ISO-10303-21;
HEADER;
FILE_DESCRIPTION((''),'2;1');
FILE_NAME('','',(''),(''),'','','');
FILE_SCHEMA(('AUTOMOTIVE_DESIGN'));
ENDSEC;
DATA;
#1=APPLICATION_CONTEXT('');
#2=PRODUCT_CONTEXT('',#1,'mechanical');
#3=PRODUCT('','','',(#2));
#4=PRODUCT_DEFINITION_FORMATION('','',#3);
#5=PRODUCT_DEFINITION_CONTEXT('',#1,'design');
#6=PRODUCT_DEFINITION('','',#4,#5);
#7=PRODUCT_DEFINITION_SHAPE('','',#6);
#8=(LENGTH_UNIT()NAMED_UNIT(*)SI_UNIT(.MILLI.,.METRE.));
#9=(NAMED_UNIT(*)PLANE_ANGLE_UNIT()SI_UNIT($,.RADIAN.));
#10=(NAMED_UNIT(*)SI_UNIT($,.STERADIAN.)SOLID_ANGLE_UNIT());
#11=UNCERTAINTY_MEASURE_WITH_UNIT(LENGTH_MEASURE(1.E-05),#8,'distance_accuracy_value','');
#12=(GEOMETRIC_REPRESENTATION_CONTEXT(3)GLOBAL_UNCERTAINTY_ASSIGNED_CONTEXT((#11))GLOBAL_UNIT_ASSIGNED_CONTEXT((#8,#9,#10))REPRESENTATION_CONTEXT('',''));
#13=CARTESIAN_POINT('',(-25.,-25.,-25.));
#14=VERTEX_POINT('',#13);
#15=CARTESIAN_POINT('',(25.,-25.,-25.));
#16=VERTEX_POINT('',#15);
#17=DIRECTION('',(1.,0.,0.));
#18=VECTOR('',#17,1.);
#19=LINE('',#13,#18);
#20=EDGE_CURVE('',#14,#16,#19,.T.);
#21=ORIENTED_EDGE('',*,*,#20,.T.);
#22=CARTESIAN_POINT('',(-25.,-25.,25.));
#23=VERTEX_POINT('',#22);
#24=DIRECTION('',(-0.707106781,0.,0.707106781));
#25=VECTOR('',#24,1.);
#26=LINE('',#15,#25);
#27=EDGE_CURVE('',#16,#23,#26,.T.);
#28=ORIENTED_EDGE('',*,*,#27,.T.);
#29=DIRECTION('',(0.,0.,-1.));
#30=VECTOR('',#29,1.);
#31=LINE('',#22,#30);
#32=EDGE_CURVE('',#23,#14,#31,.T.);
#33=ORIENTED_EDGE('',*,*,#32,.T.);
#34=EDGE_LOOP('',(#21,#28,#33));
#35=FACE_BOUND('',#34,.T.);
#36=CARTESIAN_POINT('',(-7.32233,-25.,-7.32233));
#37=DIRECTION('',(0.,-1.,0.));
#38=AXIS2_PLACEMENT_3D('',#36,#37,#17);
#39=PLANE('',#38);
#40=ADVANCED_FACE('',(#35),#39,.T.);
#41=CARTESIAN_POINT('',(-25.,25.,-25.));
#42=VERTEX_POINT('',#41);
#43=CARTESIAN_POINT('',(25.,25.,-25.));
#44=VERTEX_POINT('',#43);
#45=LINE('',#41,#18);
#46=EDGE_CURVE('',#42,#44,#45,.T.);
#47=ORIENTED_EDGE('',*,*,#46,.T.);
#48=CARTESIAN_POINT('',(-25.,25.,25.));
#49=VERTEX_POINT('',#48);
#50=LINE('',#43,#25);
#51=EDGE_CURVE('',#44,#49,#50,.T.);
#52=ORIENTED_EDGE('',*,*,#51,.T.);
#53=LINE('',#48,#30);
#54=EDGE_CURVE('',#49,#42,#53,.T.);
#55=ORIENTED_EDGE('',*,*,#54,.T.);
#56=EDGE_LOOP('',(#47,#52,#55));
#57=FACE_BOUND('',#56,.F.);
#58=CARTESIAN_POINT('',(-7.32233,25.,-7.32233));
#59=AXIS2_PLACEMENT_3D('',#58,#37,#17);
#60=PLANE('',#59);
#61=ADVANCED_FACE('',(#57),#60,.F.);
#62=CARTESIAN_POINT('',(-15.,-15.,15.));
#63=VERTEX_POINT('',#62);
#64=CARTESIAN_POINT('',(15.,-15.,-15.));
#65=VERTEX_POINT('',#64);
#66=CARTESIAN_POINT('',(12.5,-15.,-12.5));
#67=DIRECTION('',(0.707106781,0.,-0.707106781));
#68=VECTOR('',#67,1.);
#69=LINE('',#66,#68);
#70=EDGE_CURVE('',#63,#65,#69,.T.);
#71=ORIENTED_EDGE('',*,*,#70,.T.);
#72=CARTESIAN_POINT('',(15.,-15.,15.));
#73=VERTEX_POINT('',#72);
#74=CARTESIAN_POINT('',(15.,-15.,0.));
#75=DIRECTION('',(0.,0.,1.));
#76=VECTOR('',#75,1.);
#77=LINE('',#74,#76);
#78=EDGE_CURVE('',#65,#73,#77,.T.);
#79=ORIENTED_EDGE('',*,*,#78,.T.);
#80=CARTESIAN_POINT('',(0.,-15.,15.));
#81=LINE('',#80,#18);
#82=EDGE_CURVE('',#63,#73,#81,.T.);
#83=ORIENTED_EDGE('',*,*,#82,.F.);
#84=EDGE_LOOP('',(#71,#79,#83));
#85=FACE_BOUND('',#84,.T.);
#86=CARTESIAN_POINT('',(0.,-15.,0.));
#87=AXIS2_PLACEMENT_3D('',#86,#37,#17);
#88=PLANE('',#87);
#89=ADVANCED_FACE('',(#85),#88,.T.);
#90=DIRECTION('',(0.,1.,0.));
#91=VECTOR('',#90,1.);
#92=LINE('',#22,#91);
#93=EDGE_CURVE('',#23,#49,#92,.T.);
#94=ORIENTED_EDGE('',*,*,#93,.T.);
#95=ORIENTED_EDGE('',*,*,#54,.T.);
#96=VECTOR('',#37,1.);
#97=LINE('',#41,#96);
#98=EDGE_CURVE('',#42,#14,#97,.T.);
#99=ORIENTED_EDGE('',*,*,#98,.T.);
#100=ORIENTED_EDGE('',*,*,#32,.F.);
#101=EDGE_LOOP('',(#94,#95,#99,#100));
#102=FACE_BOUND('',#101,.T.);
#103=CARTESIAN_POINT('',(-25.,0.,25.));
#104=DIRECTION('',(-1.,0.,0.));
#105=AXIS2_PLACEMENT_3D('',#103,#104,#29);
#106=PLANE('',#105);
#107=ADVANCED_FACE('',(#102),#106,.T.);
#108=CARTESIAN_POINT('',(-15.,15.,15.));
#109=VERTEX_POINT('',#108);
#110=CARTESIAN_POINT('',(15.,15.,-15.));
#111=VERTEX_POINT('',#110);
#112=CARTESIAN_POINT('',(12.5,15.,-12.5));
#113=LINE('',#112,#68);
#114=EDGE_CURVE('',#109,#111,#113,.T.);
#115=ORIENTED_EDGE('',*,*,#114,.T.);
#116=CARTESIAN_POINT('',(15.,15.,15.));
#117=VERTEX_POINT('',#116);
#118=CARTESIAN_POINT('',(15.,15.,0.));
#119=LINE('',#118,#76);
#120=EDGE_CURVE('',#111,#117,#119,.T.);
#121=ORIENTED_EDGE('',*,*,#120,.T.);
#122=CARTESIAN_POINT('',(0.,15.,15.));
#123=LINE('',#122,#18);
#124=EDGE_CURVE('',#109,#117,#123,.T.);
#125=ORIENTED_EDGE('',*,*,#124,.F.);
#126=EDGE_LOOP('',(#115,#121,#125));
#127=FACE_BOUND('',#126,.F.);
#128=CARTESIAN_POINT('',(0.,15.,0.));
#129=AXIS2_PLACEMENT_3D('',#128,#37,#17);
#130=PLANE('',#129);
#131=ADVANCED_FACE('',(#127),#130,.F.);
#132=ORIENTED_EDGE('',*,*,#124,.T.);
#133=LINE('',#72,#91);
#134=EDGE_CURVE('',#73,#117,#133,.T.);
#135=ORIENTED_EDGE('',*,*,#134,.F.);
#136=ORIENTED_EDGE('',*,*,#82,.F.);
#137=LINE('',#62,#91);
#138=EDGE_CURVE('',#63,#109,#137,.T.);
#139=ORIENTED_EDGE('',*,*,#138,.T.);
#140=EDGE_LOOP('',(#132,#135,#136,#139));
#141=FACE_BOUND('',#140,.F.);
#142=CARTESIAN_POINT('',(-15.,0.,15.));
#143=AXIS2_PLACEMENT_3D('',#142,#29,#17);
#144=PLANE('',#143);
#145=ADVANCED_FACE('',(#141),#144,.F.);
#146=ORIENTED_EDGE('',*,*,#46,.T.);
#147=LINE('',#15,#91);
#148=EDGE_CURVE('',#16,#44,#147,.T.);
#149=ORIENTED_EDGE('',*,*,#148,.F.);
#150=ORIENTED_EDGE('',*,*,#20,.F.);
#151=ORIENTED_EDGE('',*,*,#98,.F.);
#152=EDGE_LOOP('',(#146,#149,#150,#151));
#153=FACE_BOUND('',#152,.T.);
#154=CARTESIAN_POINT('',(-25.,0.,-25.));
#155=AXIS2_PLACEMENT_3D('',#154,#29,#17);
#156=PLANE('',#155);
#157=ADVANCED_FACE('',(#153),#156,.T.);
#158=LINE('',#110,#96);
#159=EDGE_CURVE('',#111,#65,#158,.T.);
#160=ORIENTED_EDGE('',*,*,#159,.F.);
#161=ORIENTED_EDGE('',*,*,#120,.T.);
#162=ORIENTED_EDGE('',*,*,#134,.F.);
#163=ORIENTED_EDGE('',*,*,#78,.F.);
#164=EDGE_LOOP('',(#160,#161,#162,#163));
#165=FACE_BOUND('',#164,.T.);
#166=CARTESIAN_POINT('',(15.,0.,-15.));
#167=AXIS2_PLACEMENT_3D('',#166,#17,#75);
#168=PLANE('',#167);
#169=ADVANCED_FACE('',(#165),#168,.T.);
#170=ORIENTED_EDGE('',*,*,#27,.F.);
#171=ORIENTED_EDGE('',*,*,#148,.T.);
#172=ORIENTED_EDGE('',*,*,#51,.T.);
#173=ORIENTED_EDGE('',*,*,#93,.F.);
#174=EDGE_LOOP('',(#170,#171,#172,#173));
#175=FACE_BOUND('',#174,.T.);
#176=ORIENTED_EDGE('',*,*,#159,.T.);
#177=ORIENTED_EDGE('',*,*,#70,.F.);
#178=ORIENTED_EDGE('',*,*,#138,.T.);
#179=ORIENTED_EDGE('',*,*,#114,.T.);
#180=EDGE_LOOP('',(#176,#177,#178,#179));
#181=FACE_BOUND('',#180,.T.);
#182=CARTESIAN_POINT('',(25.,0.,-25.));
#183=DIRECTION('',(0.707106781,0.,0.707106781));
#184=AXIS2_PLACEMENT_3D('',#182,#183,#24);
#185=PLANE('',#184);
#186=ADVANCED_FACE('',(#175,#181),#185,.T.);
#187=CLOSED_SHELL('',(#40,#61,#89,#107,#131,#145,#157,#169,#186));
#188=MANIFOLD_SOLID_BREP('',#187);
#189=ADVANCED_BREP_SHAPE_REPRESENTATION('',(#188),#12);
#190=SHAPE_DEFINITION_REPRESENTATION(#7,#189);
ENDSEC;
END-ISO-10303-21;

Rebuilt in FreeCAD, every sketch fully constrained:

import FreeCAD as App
import Part
import Sketcher
from FreeCAD import Vector


def add_polygon(sketch, points):
    """Adds a closed chain of lines whose ends are joined by coincident constraints."""
    first, n = sketch.GeometryCount, len(points)
    for a, b in zip(points, points[1:] + points[:1]):
        sketch.addGeometry(Part.LineSegment(App.Vector(*a, 0), App.Vector(*b, 0)), False)
    for i in range(n):
        sketch.addConstraint(Sketcher.Constraint("Coincident", first + i, 2, first + (i + 1) % n, 1))

doc = App.newDocument("Part")
body = doc.addObject("PartDesign::Body", "Body")

# Sketch on XZ plane
sketch1 = doc.addObject("Sketcher::SketchObject", "Sketch")
body.addObject(sketch1)
sketch1.AttachmentSupport = (doc.XZ_Plane, [""])
sketch1.MapMode = "FlatFace"
add_polygon(sketch1, [(-25, 25), (-25, -25), (25, -25)])  # lines 0-2
sketch1.addConstraint([
    Sketcher.Constraint("Vertical", 0),
    Sketcher.Constraint("Horizontal", 1),
    Sketcher.Constraint("Symmetric", 1, 2, 2, 2, -1, 1),
    Sketcher.Constraint("Equal", 1, 0),
    Sketcher.Constraint("DistanceX", 1, 1, 1, 2, 50.0),
])
pad1 = doc.addObject("PartDesign::Pad", "Pad")
body.addObject(pad1)
pad1.Profile = sketch1
pad1.Length = 50
pad1.Midplane = True

# Sketch on XZ plane
sketch2 = doc.addObject("Sketcher::SketchObject", "Sketch001")
body.addObject(sketch2)
sketch2.AttachmentSupport = (doc.XZ_Plane, [""])
sketch2.MapMode = "FlatFace"
add_polygon(sketch2, [(-15, 15), (-15, -15), (15, -15), (15, 15)])  # lines 0-3
sketch2.addConstraint([
    Sketcher.Constraint("Vertical", 0),
    Sketcher.Constraint("Horizontal", 1),
    Sketcher.Constraint("Vertical", 2),
    Sketcher.Constraint("Horizontal", 3),
    Sketcher.Constraint("Symmetric", 0, 2, 2, 2, -1, 1),
    Sketcher.Constraint("Equal", 3, 0),
    Sketcher.Constraint("DistanceX", 1, 1, 1, 2, 30.0),
])
pad2 = doc.addObject("PartDesign::Pad", "Pad001")
body.addObject(pad2)
pad2.Profile = sketch2
pad2.Length = 30
pad2.Midplane = True

doc.recompute()
